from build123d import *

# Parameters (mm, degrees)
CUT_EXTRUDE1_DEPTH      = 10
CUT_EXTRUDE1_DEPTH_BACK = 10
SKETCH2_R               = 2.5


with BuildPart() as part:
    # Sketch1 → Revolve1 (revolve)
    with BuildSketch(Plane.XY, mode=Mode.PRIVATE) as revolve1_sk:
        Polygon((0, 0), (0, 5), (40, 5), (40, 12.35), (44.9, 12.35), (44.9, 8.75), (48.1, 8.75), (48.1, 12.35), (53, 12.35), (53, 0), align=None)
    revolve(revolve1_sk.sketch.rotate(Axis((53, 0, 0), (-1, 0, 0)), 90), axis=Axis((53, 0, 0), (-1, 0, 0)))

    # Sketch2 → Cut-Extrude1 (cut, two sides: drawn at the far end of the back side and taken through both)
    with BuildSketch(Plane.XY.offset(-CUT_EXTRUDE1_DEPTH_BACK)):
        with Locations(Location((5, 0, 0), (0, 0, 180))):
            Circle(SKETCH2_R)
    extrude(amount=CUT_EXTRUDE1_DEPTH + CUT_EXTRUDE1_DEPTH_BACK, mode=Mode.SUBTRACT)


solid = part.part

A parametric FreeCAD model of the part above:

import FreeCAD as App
import Part
import Sketcher
Q = App.Units.Quantity


def add_polygon(sketch, points):
    """Adds a closed chain of lines whose ends are joined by coincident constraints."""
    first, n = sketch.GeometryCount, len(points)
    for a, b in zip(points, points[1:] + points[:1]):
        sketch.addGeometry(Part.LineSegment(App.Vector(*a, 0), App.Vector(*b, 0)), False)
    for i in range(n):
        sketch.addConstraint(Sketcher.Constraint("Coincident", first + i, 2, first + (i + 1) % n, 1))

doc = App.newDocument("Part")
body = doc.addObject("PartDesign::Body", "Body")

# Sketch on XY plane
sketch1 = body.newObject("Sketcher::SketchObject", "Sketch")
sketch1.AttachmentSupport = (doc.getObject("XY_Plane"), [""])
sketch1.MapMode = "FlatFace"
add_polygon(sketch1, [(0, 5), (0, 0), (53, 0), (53, 12.3), (48.1, 12.3), (48.1, 8.8), (44.9, 8.8), (44.9, 12.3), (40, 12.3), (40, 5)])  # lines 0-9
sketch1.addConstraint([
    Sketcher.Constraint("Vertical", 0),
    Sketcher.Constraint("Horizontal", 1),
    Sketcher.Constraint("Vertical", 2),
    Sketcher.Constraint("Horizontal", 3),
    Sketcher.Constraint("Vertical", 4),
    Sketcher.Constraint("Horizontal", 5),
    Sketcher.Constraint("Vertical", 6),
    Sketcher.Constraint("Horizontal", 7),
    Sketcher.Constraint("Vertical", 8),
    Sketcher.Constraint("Horizontal", 9),
    Sketcher.Constraint("Coincident", 0, 2, -1, 1),
    Sketcher.Constraint("Horizontal", 3, 2, 6, 2),
    Sketcher.Constraint("Equal", 3, 7),
    Sketcher.Constraint("DistanceX", 1, 1, 1, 2, Q("53 mm")),
    Sketcher.Constraint("DistanceX", 9, 2, 9, 1, Q("40 mm")),
    Sketcher.Constraint("DistanceY", 0, 2, 0, 1, Q("5 mm")),
    Sketcher.Constraint("DistanceX", 3, 2, 3, 1, Q("4.9 mm")),
    Sketcher.Constraint("DistanceY", 4, 2, 4, 1, Q("3.6 mm")),
    Sketcher.Constraint("DistanceY", 2, 1, 2, 2, Q("12.35 mm")),
])
revolution = body.newObject("PartDesign::Revolution", "Revolution")
revolution.Profile = sketch1
revolution.ReferenceAxis = (sketch1, ["H_Axis"])
revolution.Angle = 360

# Sketch on XY plane
sketch2 = body.newObject("Sketcher::SketchObject", "Sketch001")
sketch2.AttachmentSupport = (doc.getObject("XY_Plane"), [""])
sketch2.MapMode = "FlatFace"
sketch2.addGeometry(Part.Circle(App.Vector(5, 0, 0), App.Vector(0, 0, 1), 2.5), False)
sketch2.addConstraint([
    Sketcher.Constraint("PointOnObject", 0, 3, -1),
    Sketcher.Constraint("Diameter", 0, Q("5 mm")),
    Sketcher.Constraint("DistanceX", -1, 1, 0, 3, Q("5 mm")),
])
pocket1 = body.newObject("PartDesign::Pocket", "Pocket")
pocket1.Profile = sketch2
pocket1.Type = "ThroughAll"
pocket1.Midplane = True

doc.recompute()
